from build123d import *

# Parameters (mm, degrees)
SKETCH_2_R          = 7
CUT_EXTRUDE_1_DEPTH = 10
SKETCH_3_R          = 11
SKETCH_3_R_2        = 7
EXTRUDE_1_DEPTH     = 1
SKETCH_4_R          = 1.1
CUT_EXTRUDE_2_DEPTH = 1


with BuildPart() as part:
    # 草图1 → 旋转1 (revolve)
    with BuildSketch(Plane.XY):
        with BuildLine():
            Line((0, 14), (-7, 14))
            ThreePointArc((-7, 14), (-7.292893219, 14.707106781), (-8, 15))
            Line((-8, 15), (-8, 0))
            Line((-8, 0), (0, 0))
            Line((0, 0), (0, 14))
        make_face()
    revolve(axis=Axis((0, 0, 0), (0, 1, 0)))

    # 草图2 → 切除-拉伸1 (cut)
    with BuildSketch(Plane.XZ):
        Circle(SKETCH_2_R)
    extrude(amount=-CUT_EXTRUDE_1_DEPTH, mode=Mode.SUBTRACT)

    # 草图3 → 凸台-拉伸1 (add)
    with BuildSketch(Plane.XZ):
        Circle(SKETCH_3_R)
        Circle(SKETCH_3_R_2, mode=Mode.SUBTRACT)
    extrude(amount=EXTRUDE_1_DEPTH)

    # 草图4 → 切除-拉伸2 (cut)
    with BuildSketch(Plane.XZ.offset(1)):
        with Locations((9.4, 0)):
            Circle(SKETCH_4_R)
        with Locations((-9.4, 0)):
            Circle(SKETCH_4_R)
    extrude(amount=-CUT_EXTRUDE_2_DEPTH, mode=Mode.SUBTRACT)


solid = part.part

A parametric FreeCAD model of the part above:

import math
import FreeCAD as App
import Part
import Sketcher

doc = App.newDocument("Part")
body = doc.addObject("PartDesign::Body", "Body")

sketch1 = body.newObject("Sketcher::SketchObject", "Sketch")
sketch1.AttachmentSupport = (doc.getObject("XY_Plane"), [""])
sketch1.MapMode = "FlatFace"
sketch1.addGeometry(Part.LineSegment(App.Vector(0, 14, 0), App.Vector(-7, 14, 0)), False)
sketch1.addGeometry(Part.ArcOfCircle(Part.Circle(App.Vector(-8, 14, 0), App.Vector(0, 0, 1), 1), math.radians(0), math.radians(90)), False)
sketch1.addGeometry(Part.LineSegment(App.Vector(-8, 15, 0), App.Vector(-8, 0, 0)), False)
sketch1.addGeometry(Part.LineSegment(App.Vector(-8, 0, 0), App.Vector(0, 0, 0)), False)
sketch1.addGeometry(Part.LineSegment(App.Vector(0, 0, 0), App.Vector(0, 14, 0)), False)
sketch1.addConstraint(Sketcher.Constraint("Coincident", 0, 2, 1, 1))
sketch1.addConstraint(Sketcher.Constraint("Coincident", 1, 2, 2, 1))
sketch1.addConstraint(Sketcher.Constraint("Coincident", 2, 2, 3, 1))
sketch1.addConstraint(Sketcher.Constraint("Coincident", 3, 2, 4, 1))
sketch1.addConstraint(Sketcher.Constraint("Coincident", 4, 2, 0, 1))
sketch1.addConstraint(Sketcher.Constraint("Horizontal", 0))
sketch1.addConstraint(Sketcher.Constraint("Vertical", 2))
sketch1.addConstraint(Sketcher.Constraint("Horizontal", 3))
sketch1.addConstraint(Sketcher.Constraint("Vertical", 4))
sketch1.addConstraint(Sketcher.Constraint("Coincident", 3, 2, -1, 1))
sketch1.addConstraint(Sketcher.Constraint("Horizontal", 1, 3, 0, 2))
sketch1.addConstraint(Sketcher.Constraint("Radius", 1, 1.0))
sketch1.addConstraint(Sketcher.Constraint("DistanceX", 0, 2, 0, 1, 7.0))
sketch1.addConstraint(Sketcher.Constraint("DistanceX", 3, 1, 3, 2, 8.0))
sketch1.addConstraint(Sketcher.Constraint("DistanceY", 2, 2, 2, 1, 15.0))
revolution = body.newObject("PartDesign::Revolution", "Revolution")
revolution.Profile = sketch1
revolution.ReferenceAxis = (sketch1, ["V_Axis"])
revolution.Angle = 360

sketch2 = body.newObject("Sketcher::SketchObject", "Sketch001")
sketch2.AttachmentSupport = (doc.getObject("XZ_Plane"), [""])
sketch2.MapMode = "FlatFace"
sketch2.addGeometry(Part.Circle(App.Vector(0, 0, 0), App.Vector(0, 0, 1), 7), False)
sketch2.addConstraint(Sketcher.Constraint("Coincident", 0, 3, -1, 1))
sketch2.addConstraint(Sketcher.Constraint("Diameter", 0, 14.0))
pocket1 = body.newObject("PartDesign::Pocket", "Pocket")
pocket1.Profile = sketch2
pocket1.Length = 10

sketch3 = body.newObject("Sketcher::SketchObject", "Sketch002")
sketch3.AttachmentSupport = (doc.getObject("XZ_Plane"), [""])
sketch3.MapMode = "FlatFace"
sketch3.addGeometry(Part.Circle(App.Vector(0, 0, 0), App.Vector(0, 0, 1), 11), False)
sketch3.addGeometry(Part.Circle(App.Vector(0, 0, 0), App.Vector(0, 0, 1), 7), False)
sketch3.addConstraint(Sketcher.Constraint("Coincident", 0, 3, -1, 1))
sketch3.addConstraint(Sketcher.Constraint("Coincident", 1, 3, -1, 1))
sketch3.addConstraint(Sketcher.Constraint("Diameter", 0, 22.0))
sketch3.addConstraint(Sketcher.Constraint("Diameter", 1, 14.0))
pad1 = body.newObject("PartDesign::Pad", "Pad")
pad1.Profile = sketch3
pad1.Length = 1

sketch4 = body.newObject("Sketcher::SketchObject", "Sketch003")
sketch4.AttachmentSupport = (doc.getObject("XZ_Plane"), [""])
sketch4.MapMode = "FlatFace"
sketch4.AttachmentOffset = App.Placement(App.Vector(0, 0, 1), App.Rotation())
sketch4.addGeometry(Part.Circle(App.Vector(9.4, 0, 0), App.Vector(0, 0, 1), 1.1), False)
sketch4.addGeometry(Part.Circle(App.Vector(-9.4, 0, 0), App.Vector(0, 0, 1), 1.1), False)
sketch4.addConstraint(Sketcher.Constraint("Equal", 0, 1))
sketch4.addConstraint(Sketcher.Constraint("Symmetric", 0, 3, 1, 3, -1, 1))
sketch4.addConstraint(Sketcher.Constraint("PointOnObject", 0, 3, -1))
sketch4.addConstraint(Sketcher.Constraint("Diameter", 0, 2.2))
sketch4.addConstraint(Sketcher.Constraint("DistanceX", -1, 1, 0, 3, 9.4))
pocket2 = body.newObject("PartDesign::Pocket", "Pocket001")
pocket2.Profile = sketch4
pocket2.Length = 1

doc.recompute()
